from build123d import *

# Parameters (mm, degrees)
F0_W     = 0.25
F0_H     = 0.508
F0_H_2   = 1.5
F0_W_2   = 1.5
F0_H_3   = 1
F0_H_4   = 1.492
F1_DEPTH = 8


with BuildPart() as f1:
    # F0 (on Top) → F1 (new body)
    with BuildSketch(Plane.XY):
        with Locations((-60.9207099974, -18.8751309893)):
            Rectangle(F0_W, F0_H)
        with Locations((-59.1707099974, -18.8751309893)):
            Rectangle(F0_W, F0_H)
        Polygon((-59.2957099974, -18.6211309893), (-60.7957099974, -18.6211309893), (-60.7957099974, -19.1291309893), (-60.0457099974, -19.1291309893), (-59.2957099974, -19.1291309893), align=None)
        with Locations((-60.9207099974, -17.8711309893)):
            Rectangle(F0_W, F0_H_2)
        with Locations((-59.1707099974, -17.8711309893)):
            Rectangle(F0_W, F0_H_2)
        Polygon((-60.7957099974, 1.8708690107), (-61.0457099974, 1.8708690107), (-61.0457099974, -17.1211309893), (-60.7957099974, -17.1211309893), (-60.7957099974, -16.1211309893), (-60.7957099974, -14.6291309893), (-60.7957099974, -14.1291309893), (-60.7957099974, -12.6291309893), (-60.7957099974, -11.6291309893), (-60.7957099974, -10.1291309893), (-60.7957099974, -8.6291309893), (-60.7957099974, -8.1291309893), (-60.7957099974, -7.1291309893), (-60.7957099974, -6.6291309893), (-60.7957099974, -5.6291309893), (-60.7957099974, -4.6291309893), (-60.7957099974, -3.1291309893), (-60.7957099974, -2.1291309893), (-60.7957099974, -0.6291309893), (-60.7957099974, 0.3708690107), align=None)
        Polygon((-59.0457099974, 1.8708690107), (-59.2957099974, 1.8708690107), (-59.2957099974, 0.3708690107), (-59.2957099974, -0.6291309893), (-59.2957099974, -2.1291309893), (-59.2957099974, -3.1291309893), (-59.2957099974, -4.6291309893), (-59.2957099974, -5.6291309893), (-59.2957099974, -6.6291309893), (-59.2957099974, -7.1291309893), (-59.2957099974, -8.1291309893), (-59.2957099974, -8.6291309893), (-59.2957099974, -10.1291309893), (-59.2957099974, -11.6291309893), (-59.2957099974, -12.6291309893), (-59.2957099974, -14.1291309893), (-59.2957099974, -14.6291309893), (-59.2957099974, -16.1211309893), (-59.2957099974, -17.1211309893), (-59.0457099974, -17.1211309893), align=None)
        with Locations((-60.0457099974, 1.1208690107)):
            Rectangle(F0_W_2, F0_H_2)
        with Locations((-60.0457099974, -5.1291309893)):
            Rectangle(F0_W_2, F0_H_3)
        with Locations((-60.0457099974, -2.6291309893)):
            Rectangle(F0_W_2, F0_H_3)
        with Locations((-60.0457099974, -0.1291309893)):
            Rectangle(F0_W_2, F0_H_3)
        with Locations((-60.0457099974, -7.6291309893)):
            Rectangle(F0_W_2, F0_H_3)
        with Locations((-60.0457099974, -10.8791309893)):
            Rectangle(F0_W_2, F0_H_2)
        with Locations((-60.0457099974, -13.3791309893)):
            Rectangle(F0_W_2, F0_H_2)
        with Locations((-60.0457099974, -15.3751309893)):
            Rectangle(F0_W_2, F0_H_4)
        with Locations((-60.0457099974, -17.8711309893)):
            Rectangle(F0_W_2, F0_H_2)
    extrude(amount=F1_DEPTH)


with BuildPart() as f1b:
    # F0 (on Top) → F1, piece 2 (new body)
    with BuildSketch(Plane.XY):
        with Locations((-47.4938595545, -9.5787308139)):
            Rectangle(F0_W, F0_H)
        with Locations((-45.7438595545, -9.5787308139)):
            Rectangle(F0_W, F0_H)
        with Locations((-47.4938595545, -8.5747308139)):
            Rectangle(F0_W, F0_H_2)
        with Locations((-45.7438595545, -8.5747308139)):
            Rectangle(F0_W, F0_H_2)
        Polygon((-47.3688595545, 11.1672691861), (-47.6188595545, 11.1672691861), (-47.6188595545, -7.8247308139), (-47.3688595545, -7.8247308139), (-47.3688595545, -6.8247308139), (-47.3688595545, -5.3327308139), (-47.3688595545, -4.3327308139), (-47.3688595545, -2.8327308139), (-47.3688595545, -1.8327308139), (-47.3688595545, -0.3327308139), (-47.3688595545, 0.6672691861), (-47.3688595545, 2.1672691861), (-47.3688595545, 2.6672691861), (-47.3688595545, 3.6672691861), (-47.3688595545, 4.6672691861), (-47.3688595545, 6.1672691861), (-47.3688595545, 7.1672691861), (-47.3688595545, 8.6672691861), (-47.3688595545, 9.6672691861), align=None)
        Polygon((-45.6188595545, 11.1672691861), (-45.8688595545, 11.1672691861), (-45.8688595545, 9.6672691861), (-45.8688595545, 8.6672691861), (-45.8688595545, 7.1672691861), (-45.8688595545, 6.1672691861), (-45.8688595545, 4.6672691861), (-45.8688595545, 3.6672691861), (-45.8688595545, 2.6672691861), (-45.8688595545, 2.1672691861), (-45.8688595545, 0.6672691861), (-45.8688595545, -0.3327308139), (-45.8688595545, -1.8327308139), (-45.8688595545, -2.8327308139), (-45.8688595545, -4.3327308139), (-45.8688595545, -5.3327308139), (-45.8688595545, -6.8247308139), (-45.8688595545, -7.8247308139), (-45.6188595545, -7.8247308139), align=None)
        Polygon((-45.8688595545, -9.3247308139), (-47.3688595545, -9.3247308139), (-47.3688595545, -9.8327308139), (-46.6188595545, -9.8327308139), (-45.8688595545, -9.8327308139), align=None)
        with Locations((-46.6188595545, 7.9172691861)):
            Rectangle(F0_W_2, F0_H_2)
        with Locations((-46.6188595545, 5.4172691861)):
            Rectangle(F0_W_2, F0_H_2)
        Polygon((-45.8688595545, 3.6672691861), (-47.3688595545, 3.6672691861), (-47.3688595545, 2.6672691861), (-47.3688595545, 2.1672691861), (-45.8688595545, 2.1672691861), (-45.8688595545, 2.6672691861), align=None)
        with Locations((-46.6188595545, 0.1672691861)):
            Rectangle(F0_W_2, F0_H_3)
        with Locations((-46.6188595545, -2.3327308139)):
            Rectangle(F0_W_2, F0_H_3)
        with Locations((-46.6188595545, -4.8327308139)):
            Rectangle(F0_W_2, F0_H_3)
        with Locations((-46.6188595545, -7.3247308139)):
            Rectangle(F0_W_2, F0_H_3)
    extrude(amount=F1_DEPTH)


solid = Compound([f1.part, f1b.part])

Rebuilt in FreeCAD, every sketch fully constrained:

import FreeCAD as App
import Part
import Sketcher

V = App.Vector
Q = App.Units.Quantity

doc = App.newDocument("Part")
body = doc.addObject("PartDesign::Body", "Body")

# Sketch on XY plane
sketch1 = body.newObject("Sketcher::SketchObject", "Sketch")
sketch1.AttachmentSupport = (doc.getObject("XY_Plane"), [""])
sketch1.MapMode = "FlatFace"
sketch1.addGeometry(Part.LineSegment(V(-61, -19.1, 0), V(-59, -19.1, 0)), False)
sketch1.addGeometry(Part.LineSegment(V(-59, -19.1, 0), V(-59, 1.9, 0)), False)
sketch1.addGeometry(Part.LineSegment(V(-59, 1.9, 0), V(-61, 1.9, 0)), False)
sketch1.addGeometry(Part.LineSegment(V(-61, 1.9, 0), V(-61, -19.1, 0)), False)
sketch1.addGeometry(Part.LineSegment(V(-59.3, -0.6, 0), V(-59.3, -2.1, 0)), False)
sketch1.addGeometry(Part.LineSegment(V(-59.3, -2.1, 0), V(-60.8, -2.1, 0)), False)
sketch1.addGeometry(Part.LineSegment(V(-60.8, -2.1, 0), V(-60.8, -0.6, 0)), False)
sketch1.addGeometry(Part.LineSegment(V(-60.8, -0.6, 0), V(-59.3, -0.6, 0)), False)
sketch1.addGeometry(Part.LineSegment(V(-59.3, -3.1, 0), V(-59.3, -4.6, 0)), False)
sketch1.addGeometry(Part.LineSegment(V(-59.3, -4.6, 0), V(-60.8, -4.6, 0)), False)
sketch1.addGeometry(Part.LineSegment(V(-60.8, -4.6, 0), V(-60.8, -3.1, 0)), False)
sketch1.addGeometry(Part.LineSegment(V(-60.8, -3.1, 0), V(-59.3, -3.1, 0)), False)
sketch1.addGeometry(Part.LineSegment(V(-59.3, -5.6, 0), V(-59.3, -7.1, 0)), False)
sketch1.addGeometry(Part.LineSegment(V(-59.3, -7.1, 0), V(-60.8, -7.1, 0)), False)
sketch1.addGeometry(Part.LineSegment(V(-60.8, -7.1, 0), V(-60.8, -5.6, 0)), False)
sketch1.addGeometry(Part.LineSegment(V(-60.8, -5.6, 0), V(-59.3, -5.6, 0)), False)
sketch1.addGeometry(Part.LineSegment(V(-59.3, -8.1, 0), V(-59.3, -10.1, 0)), False)
sketch1.addGeometry(Part.LineSegment(V(-59.3, -10.1, 0), V(-60.8, -10.1, 0)), False)
sketch1.addGeometry(Part.LineSegment(V(-60.8, -10.1, 0), V(-60.8, -8.1, 0)), False)
sketch1.addGeometry(Part.LineSegment(V(-60.8, -8.1, 0), V(-59.3, -8.1, 0)), False)
sketch1.addGeometry(Part.LineSegment(V(-59.3, -11.6, 0), V(-59.3, -12.6, 0)), False)
sketch1.addGeometry(Part.LineSegment(V(-59.3, -12.6, 0), V(-60.8, -12.6, 0)), False)
sketch1.addGeometry(Part.LineSegment(V(-60.8, -12.6, 0), V(-60.8, -11.6, 0)), False)
sketch1.addGeometry(Part.LineSegment(V(-60.8, -11.6, 0), V(-59.3, -11.6, 0)), False)
sketch1.addGeometry(Part.LineSegment(V(-59.3, -14.1, 0), V(-59.3, -14.6, 0)), False)
sketch1.addGeometry(Part.LineSegment(V(-59.3, -14.6, 0), V(-60.8, -14.6, 0)), False)
sketch1.addGeometry(Part.LineSegment(V(-60.8, -14.6, 0), V(-60.8, -14.1, 0)), False)
sketch1.addGeometry(Part.LineSegment(V(-60.8, -14.1, 0), V(-59.3, -14.1, 0)), False)
sketch1.addGeometry(Part.LineSegment(V(-59.3, -16.1, 0), V(-59.3, -17.1, 0)), False)
sketch1.addGeometry(Part.LineSegment(V(-59.3, -17.1, 0), V(-60.8, -17.1, 0)), False)
sketch1.addGeometry(Part.LineSegment(V(-60.8, -17.1, 0), V(-60.8, -16.1, 0)), False)
sketch1.addGeometry(Part.LineSegment(V(-60.8, -16.1, 0), V(-59.3, -16.1, 0)), False)
sketch1.addConstraint(Sketcher.Constraint("Coincident", 0, 2, 1, 1))
sketch1.addConstraint(Sketcher.Constraint("Coincident", 1, 2, 2, 1))
sketch1.addConstraint(Sketcher.Constraint("Coincident", 2, 2, 3, 1))
sketch1.addConstraint(Sketcher.Constraint("Coincident", 3, 2, 0, 1))
sketch1.addConstraint(Sketcher.Constraint("Coincident", 4, 2, 5, 1))
sketch1.addConstraint(Sketcher.Constraint("Coincident", 5, 2, 6, 1))
sketch1.addConstraint(Sketcher.Constraint("Coincident", 6, 2, 7, 1))
sketch1.addConstraint(Sketcher.Constraint("Coincident", 7, 2, 4, 1))
sketch1.addConstraint(Sketcher.Constraint("Coincident", 8, 2, 9, 1))
sketch1.addConstraint(Sketcher.Constraint("Coincident", 9, 2, 10, 1))
sketch1.addConstraint(Sketcher.Constraint("Coincident", 10, 2, 11, 1))
sketch1.addConstraint(Sketcher.Constraint("Coincident", 11, 2, 8, 1))
sketch1.addConstraint(Sketcher.Constraint("Coincident", 12, 2, 13, 1))
sketch1.addConstraint(Sketcher.Constraint("Coincident", 13, 2, 14, 1))
sketch1.addConstraint(Sketcher.Constraint("Coincident", 14, 2, 15, 1))
sketch1.addConstraint(Sketcher.Constraint("Coincident", 15, 2, 12, 1))
sketch1.addConstraint(Sketcher.Constraint("Coincident", 16, 2, 17, 1))
sketch1.addConstraint(Sketcher.Constraint("Coincident", 17, 2, 18, 1))
sketch1.addConstraint(Sketcher.Constraint("Coincident", 18, 2, 19, 1))
sketch1.addConstraint(Sketcher.Constraint("Coincident", 19, 2, 16, 1))
sketch1.addConstraint(Sketcher.Constraint("Coincident", 20, 2, 21, 1))
sketch1.addConstraint(Sketcher.Constraint("Coincident", 21, 2, 22, 1))
sketch1.addConstraint(Sketcher.Constraint("Coincident", 22, 2, 23, 1))
sketch1.addConstraint(Sketcher.Constraint("Coincident", 23, 2, 20, 1))
sketch1.addConstraint(Sketcher.Constraint("Coincident", 24, 2, 25, 1))
sketch1.addConstraint(Sketcher.Constraint("Coincident", 25, 2, 26, 1))
sketch1.addConstraint(Sketcher.Constraint("Coincident", 26, 2, 27, 1))
sketch1.addConstraint(Sketcher.Constraint("Coincident", 27, 2, 24, 1))
sketch1.addConstraint(Sketcher.Constraint("Coincident", 28, 2, 29, 1))
sketch1.addConstraint(Sketcher.Constraint("Coincident", 29, 2, 30, 1))
sketch1.addConstraint(Sketcher.Constraint("Coincident", 30, 2, 31, 1))
sketch1.addConstraint(Sketcher.Constraint("Coincident", 31, 2, 28, 1))
sketch1.addConstraint(Sketcher.Constraint("Horizontal", 0))
sketch1.addConstraint(Sketcher.Constraint("Vertical", 1))
sketch1.addConstraint(Sketcher.Constraint("Horizontal", 2))
sketch1.addConstraint(Sketcher.Constraint("Vertical", 3))
sketch1.addConstraint(Sketcher.Constraint("Vertical", 4))
sketch1.addConstraint(Sketcher.Constraint("Horizontal", 5))
sketch1.addConstraint(Sketcher.Constraint("Vertical", 6))
sketch1.addConstraint(Sketcher.Constraint("Horizontal", 7))
sketch1.addConstraint(Sketcher.Constraint("Vertical", 8))
sketch1.addConstraint(Sketcher.Constraint("Horizontal", 9))
sketch1.addConstraint(Sketcher.Constraint("Vertical", 10))
sketch1.addConstraint(Sketcher.Constraint("Horizontal", 11))
sketch1.addConstraint(Sketcher.Constraint("Vertical", 12))
sketch1.addConstraint(Sketcher.Constraint("Horizontal", 13))
sketch1.addConstraint(Sketcher.Constraint("Vertical", 14))
sketch1.addConstraint(Sketcher.Constraint("Horizontal", 15))
sketch1.addConstraint(Sketcher.Constraint("Vertical", 16))
sketch1.addConstraint(Sketcher.Constraint("Horizontal", 17))
sketch1.addConstraint(Sketcher.Constraint("Vertical", 18))
sketch1.addConstraint(Sketcher.Constraint("Horizontal", 19))
sketch1.addConstraint(Sketcher.Constraint("Vertical", 20))
sketch1.addConstraint(Sketcher.Constraint("Horizontal", 21))
sketch1.addConstraint(Sketcher.Constraint("Vertical", 22))
sketch1.addConstraint(Sketcher.Constraint("Horizontal", 23))
sketch1.addConstraint(Sketcher.Constraint("Vertical", 24))
sketch1.addConstraint(Sketcher.Constraint("Horizontal", 25))
sketch1.addConstraint(Sketcher.Constraint("Vertical", 26))
sketch1.addConstraint(Sketcher.Constraint("Horizontal", 27))
sketch1.addConstraint(Sketcher.Constraint("Vertical", 28))
sketch1.addConstraint(Sketcher.Constraint("Horizontal", 29))
sketch1.addConstraint(Sketcher.Constraint("Vertical", 30))
sketch1.addConstraint(Sketcher.Constraint("Horizontal", 31))
sketch1.addConstraint(Sketcher.Constraint("Vertical", 7, 2, 8, 2))
sketch1.addConstraint(Sketcher.Constraint("Vertical", 6, 2, 9, 2))
sketch1.addConstraint(Sketcher.Constraint("Vertical", 11, 2, 12, 2))
sketch1.addConstraint(Sketcher.Constraint("Vertical", 10, 2, 13, 2))
sketch1.addConstraint(Sketcher.Constraint("Vertical", 15, 2, 16, 2))
sketch1.addConstraint(Sketcher.Constraint("Vertical", 14, 2, 17, 2))
sketch1.addConstraint(Sketcher.Constraint("Vertical", 19, 2, 20, 2))
sketch1.addConstraint(Sketcher.Constraint("Vertical", 18, 2, 21, 2))
sketch1.addConstraint(Sketcher.Constraint("Vertical", 23, 2, 24, 2))
sketch1.addConstraint(Sketcher.Constraint("Vertical", 22, 2, 25, 2))
sketch1.addConstraint(Sketcher.Constraint("Vertical", 27, 2, 28, 2))
sketch1.addConstraint(Sketcher.Constraint("Vertical", 26, 2, 29, 2))
sketch1.addConstraint(Sketcher.Constraint("Equal", 31, 4))
sketch1.addConstraint(Sketcher.Constraint("Equal", 6, 8))
sketch1.addConstraint(Sketcher.Constraint("Equal", 10, 12))
sketch1.addConstraint(Sketcher.Constraint("Equal", 2, 16))
sketch1.addConstraint(Sketcher.Constraint("Equal", 22, 28))
sketch1.addConstraint(Sketcher.Constraint("DistanceX", 0, 1, 0, 2, Q("2 mm")))
sketch1.addConstraint(Sketcher.Constraint("DistanceY", 1, 1, 1, 2, Q("21 mm")))
sketch1.addConstraint(Sketcher.Constraint("DistanceY", 20, 2, 20, 1, Q("1 mm")))
sketch1.addConstraint(Sketcher.Constraint("DistanceX", 5, 2, 5, 1, Q("1.5 mm")))
sketch1.addConstraint(Sketcher.Constraint("DistanceY", 24, 2, 24, 1, Q("0.5 mm")))
sketch1.addConstraint(Sketcher.Constraint("DistanceY", 4, 2, 1, 2, Q("4 mm")))
sketch1.addConstraint(Sketcher.Constraint("DistanceY", 8, 2, 7, 2, Q("4 mm")))
sketch1.addConstraint(Sketcher.Constraint("DistanceY", 12, 2, 11, 2, Q("4 mm")))
sketch1.addConstraint(Sketcher.Constraint("DistanceY", 16, 2, 12, 2, Q("3 mm")))
sketch1.addConstraint(Sketcher.Constraint("DistanceY", 24, 2, 20, 2, Q("2 mm")))
sketch1.addConstraint(Sketcher.Constraint("DistanceY", 20, 2, 16, 2, Q("2.5 mm")))
sketch1.addConstraint(Sketcher.Constraint("DistanceX", 4, 2, 1, 2, Q("0.25 mm")))
sketch1.addConstraint(Sketcher.Constraint("DistanceY", 0, 2, 28, 2, Q("2.008 mm")))
sketch1.addConstraint(Sketcher.Constraint("DistanceX", 0, 2, -1, 1, Q("59.04571 mm")))
sketch1.addConstraint(Sketcher.Constraint("DistanceY", 0, 2, -1, 1, Q("19.129131 mm")))
pad1 = body.newObject("PartDesign::Pad", "Pad")
pad1.Profile = sketch1
pad1.Length = 8
body2 = doc.addObject("PartDesign::Body", "Body001")

# Sketch on XY plane
sketch2 = body2.newObject("Sketcher::SketchObject", "Sketch001")
sketch2.AttachmentSupport = (doc.getObject("XY_Plane001"), [""])
sketch2.MapMode = "FlatFace"
sketch2.addGeometry(Part.LineSegment(V(-47.62, -9.83, 0), V(-45.62, -9.83, 0)), False)
sketch2.addGeometry(Part.LineSegment(V(-45.62, -9.83, 0), V(-45.62, 11.17, 0)), False)
sketch2.addGeometry(Part.LineSegment(V(-45.62, 11.17, 0), V(-45.87, 11.17, 0)), False)
sketch2.addGeometry(Part.LineSegment(V(-45.87, 11.17, 0), V(-45.87, 8.67, 0)), False)
sketch2.addGeometry(Part.LineSegment(V(-45.87, 8.67, 0), V(-47.37, 8.67, 0)), False)
sketch2.addGeometry(Part.LineSegment(V(-47.37, 8.67, 0), V(-47.37, 11.17, 0)), False)
sketch2.addGeometry(Part.LineSegment(V(-47.37, 11.17, 0), V(-47.62, 11.17, 0)), False)
sketch2.addGeometry(Part.LineSegment(V(-47.62, 11.17, 0), V(-47.62, -9.83, 0)), False)
sketch2.addGeometry(Part.LineSegment(V(-45.87, 7.17, 0), V(-45.87, 6.17, 0)), False)
sketch2.addGeometry(Part.LineSegment(V(-45.87, 6.17, 0), V(-47.37, 6.17, 0)), False)
sketch2.addGeometry(Part.LineSegment(V(-47.37, 6.17, 0), V(-47.37, 7.17, 0)), False)
sketch2.addGeometry(Part.LineSegment(V(-47.37, 7.17, 0), V(-45.87, 7.17, 0)), False)
sketch2.addGeometry(Part.LineSegment(V(-45.87, 4.67, 0), V(-45.87, 3.67, 0)), False)
sketch2.addGeometry(Part.LineSegment(V(-45.87, 3.67, 0), V(-47.37, 3.67, 0)), False)
sketch2.addGeometry(Part.LineSegment(V(-47.37, 3.67, 0), V(-47.37, 4.67, 0)), False)
sketch2.addGeometry(Part.LineSegment(V(-47.37, 4.67, 0), V(-45.87, 4.67, 0)), False)
sketch2.addGeometry(Part.LineSegment(V(-45.87, 2.17, 0), V(-45.87, 0.67, 0)), False)
sketch2.addGeometry(Part.LineSegment(V(-45.87, 0.67, 0), V(-47.37, 0.67, 0)), False)
sketch2.addGeometry(Part.LineSegment(V(-47.37, 0.67, 0), V(-47.37, 2.17, 0)), False)
sketch2.addGeometry(Part.LineSegment(V(-47.37, 2.17, 0), V(-45.87, 2.17, 0)), False)
sketch2.addGeometry(Part.LineSegment(V(-45.87, -0.33, 0), V(-45.87, -1.83, 0)), False)
sketch2.addGeometry(Part.LineSegment(V(-45.87, -1.83, 0), V(-47.37, -1.83, 0)), False)
sketch2.addGeometry(Part.LineSegment(V(-47.37, -1.83, 0), V(-47.37, -0.33, 0)), False)
sketch2.addGeometry(Part.LineSegment(V(-47.37, -0.33, 0), V(-45.87, -0.33, 0)), False)
sketch2.addGeometry(Part.LineSegment(V(-45.87, -2.83, 0), V(-45.87, -4.33, 0)), False)
sketch2.addGeometry(Part.LineSegment(V(-45.87, -4.33, 0), V(-47.37, -4.33, 0)), False)
sketch2.addGeometry(Part.LineSegment(V(-47.37, -4.33, 0), V(-47.37, -2.83, 0)), False)
sketch2.addGeometry(Part.LineSegment(V(-47.37, -2.83, 0), V(-45.87, -2.83, 0)), False)
sketch2.addGeometry(Part.LineSegment(V(-45.87, -5.33, 0), V(-45.87, -6.82, 0)), False)
sketch2.addGeometry(Part.LineSegment(V(-45.87, -6.82, 0), V(-47.37, -6.82, 0)), False)
sketch2.addGeometry(Part.LineSegment(V(-47.37, -6.82, 0), V(-47.37, -5.33, 0)), False)
sketch2.addGeometry(Part.LineSegment(V(-47.37, -5.33, 0), V(-45.87, -5.33, 0)), False)
sketch2.addGeometry(Part.LineSegment(V(-45.87, -7.82, 0), V(-45.87, -9.32, 0)), False)
sketch2.addGeometry(Part.LineSegment(V(-45.87, -9.32, 0), V(-47.37, -9.32, 0)), False)
sketch2.addGeometry(Part.LineSegment(V(-47.37, -9.32, 0), V(-47.37, -7.82, 0)), False)
sketch2.addGeometry(Part.LineSegment(V(-47.37, -7.82, 0), V(-45.87, -7.82, 0)), False)
sketch2.addConstraint(Sketcher.Constraint("Coincident", 0, 2, 1, 1))
sketch2.addConstraint(Sketcher.Constraint("Coincident", 1, 2, 2, 1))
sketch2.addConstraint(Sketcher.Constraint("Coincident", 2, 2, 3, 1))
sketch2.addConstraint(Sketcher.Constraint("Coincident", 3, 2, 4, 1))
sketch2.addConstraint(Sketcher.Constraint("Coincident", 4, 2, 5, 1))
sketch2.addConstraint(Sketcher.Constraint("Coincident", 5, 2, 6, 1))
sketch2.addConstraint(Sketcher.Constraint("Coincident", 6, 2, 7, 1))
sketch2.addConstraint(Sketcher.Constraint("Coincident", 7, 2, 0, 1))
sketch2.addConstraint(Sketcher.Constraint("Coincident", 8, 2, 9, 1))
sketch2.addConstraint(Sketcher.Constraint("Coincident", 9, 2, 10, 1))
sketch2.addConstraint(Sketcher.Constraint("Coincident", 10, 2, 11, 1))
sketch2.addConstraint(Sketcher.Constraint("Coincident", 11, 2, 8, 1))
sketch2.addConstraint(Sketcher.Constraint("Coincident", 12, 2, 13, 1))
sketch2.addConstraint(Sketcher.Constraint("Coincident", 13, 2, 14, 1))
sketch2.addConstraint(Sketcher.Constraint("Coincident", 14, 2, 15, 1))
sketch2.addConstraint(Sketcher.Constraint("Coincident", 15, 2, 12, 1))
sketch2.addConstraint(Sketcher.Constraint("Coincident", 16, 2, 17, 1))
sketch2.addConstraint(Sketcher.Constraint("Coincident", 17, 2, 18, 1))
sketch2.addConstraint(Sketcher.Constraint("Coincident", 18, 2, 19, 1))
sketch2.addConstraint(Sketcher.Constraint("Coincident", 19, 2, 16, 1))
sketch2.addConstraint(Sketcher.Constraint("Coincident", 20, 2, 21, 1))
sketch2.addConstraint(Sketcher.Constraint("Coincident", 21, 2, 22, 1))
sketch2.addConstraint(Sketcher.Constraint("Coincident", 22, 2, 23, 1))
sketch2.addConstraint(Sketcher.Constraint("Coincident", 23, 2, 20, 1))
sketch2.addConstraint(Sketcher.Constraint("Coincident", 24, 2, 25, 1))
sketch2.addConstraint(Sketcher.Constraint("Coincident", 25, 2, 26, 1))
sketch2.addConstraint(Sketcher.Constraint("Coincident", 26, 2, 27, 1))
sketch2.addConstraint(Sketcher.Constraint("Coincident", 27, 2, 24, 1))
sketch2.addConstraint(Sketcher.Constraint("Coincident", 28, 2, 29, 1))
sketch2.addConstraint(Sketcher.Constraint("Coincident", 29, 2, 30, 1))
sketch2.addConstraint(Sketcher.Constraint("Coincident", 30, 2, 31, 1))
sketch2.addConstraint(Sketcher.Constraint("Coincident", 31, 2, 28, 1))
sketch2.addConstraint(Sketcher.Constraint("Coincident", 32, 2, 33, 1))
sketch2.addConstraint(Sketcher.Constraint("Coincident", 33, 2, 34, 1))
sketch2.addConstraint(Sketcher.Constraint("Coincident", 34, 2, 35, 1))
sketch2.addConstraint(Sketcher.Constraint("Coincident", 35, 2, 32, 1))
sketch2.addConstraint(Sketcher.Constraint("Horizontal", 0))
sketch2.addConstraint(Sketcher.Constraint("Vertical", 1))
sketch2.addConstraint(Sketcher.Constraint("Horizontal", 2))
sketch2.addConstraint(Sketcher.Constraint("Vertical", 3))
sketch2.addConstraint(Sketcher.Constraint("Horizontal", 4))
sketch2.addConstraint(Sketcher.Constraint("Vertical", 5))
sketch2.addConstraint(Sketcher.Constraint("Horizontal", 6))
sketch2.addConstraint(Sketcher.Constraint("Vertical", 7))
sketch2.addConstraint(Sketcher.Constraint("Vertical", 8))
sketch2.addConstraint(Sketcher.Constraint("Horizontal", 9))
sketch2.addConstraint(Sketcher.Constraint("Vertical", 10))
sketch2.addConstraint(Sketcher.Constraint("Horizontal", 11))
sketch2.addConstraint(Sketcher.Constraint("Vertical", 12))
sketch2.addConstraint(Sketcher.Constraint("Horizontal", 13))
sketch2.addConstraint(Sketcher.Constraint("Vertical", 14))
sketch2.addConstraint(Sketcher.Constraint("Horizontal", 15))
sketch2.addConstraint(Sketcher.Constraint("Vertical", 16))
sketch2.addConstraint(Sketcher.Constraint("Horizontal", 17))
sketch2.addConstraint(Sketcher.Constraint("Vertical", 18))
sketch2.addConstraint(Sketcher.Constraint("Horizontal", 19))
sketch2.addConstraint(Sketcher.Constraint("Vertical", 20))
sketch2.addConstraint(Sketcher.Constraint("Horizontal", 21))
sketch2.addConstraint(Sketcher.Constraint("Vertical", 22))
sketch2.addConstraint(Sketcher.Constraint("Horizontal", 23))
sketch2.addConstraint(Sketcher.Constraint("Vertical", 24))
sketch2.addConstraint(Sketcher.Constraint("Horizontal", 25))
sketch2.addConstraint(Sketcher.Constraint("Vertical", 26))
sketch2.addConstraint(Sketcher.Constraint("Horizontal", 27))
sketch2.addConstraint(Sketcher.Constraint("Vertical", 28))
sketch2.addConstraint(Sketcher.Constraint("Horizontal", 29))
sketch2.addConstraint(Sketcher.Constraint("Vertical", 30))
sketch2.addConstraint(Sketcher.Constraint("Horizontal", 31))
sketch2.addConstraint(Sketcher.Constraint("Vertical", 32))
sketch2.addConstraint(Sketcher.Constraint("Horizontal", 33))
sketch2.addConstraint(Sketcher.Constraint("Vertical", 34))
sketch2.addConstraint(Sketcher.Constraint("Horizontal", 35))
sketch2.addConstraint(Sketcher.Constraint("Horizontal", 2, 2, 5, 2))
sketch2.addConstraint(Sketcher.Constraint("Vertical", 3, 2, 8, 2))
sketch2.addConstraint(Sketcher.Constraint("Vertical", 5, 2, 9, 2))
sketch2.addConstraint(Sketcher.Constraint("Vertical", 11, 2, 12, 2))
sketch2.addConstraint(Sketcher.Constraint("Vertical", 10, 2, 13, 2))
sketch2.addConstraint(Sketcher.Constraint("Vertical", 15, 2, 16, 2))
sketch2.addConstraint(Sketcher.Constraint("Vertical", 14, 2, 17, 2))
sketch2.addConstraint(Sketcher.Constraint("Vertical", 19, 2, 20, 2))
sketch2.addConstraint(Sketcher.Constraint("Vertical", 18, 2, 21, 2))
sketch2.addConstraint(Sketcher.Constraint("Vertical", 23, 2, 24, 2))
sketch2.addConstraint(Sketcher.Constraint("Vertical", 22, 2, 25, 2))
sketch2.addConstraint(Sketcher.Constraint("Vertical", 27, 2, 28, 2))
sketch2.addConstraint(Sketcher.Constraint("Vertical", 26, 2, 29, 2))
sketch2.addConstraint(Sketcher.Constraint("Vertical", 31, 2, 32, 2))
sketch2.addConstraint(Sketcher.Constraint("Vertical", 30, 2, 33, 2))
sketch2.addConstraint(Sketcher.Constraint("Equal", 2, 6))
sketch2.addConstraint(Sketcher.Constraint("Equal", 10, 12))
sketch2.addConstraint(Sketcher.Constraint("Equal", 35, 16))
sketch2.addConstraint(Sketcher.Constraint("Equal", 18, 20))
sketch2.addConstraint(Sketcher.Constraint("Equal", 22, 24))
sketch2.addConstraint(Sketcher.Constraint("Equal", 26, 32))
sketch2.addConstraint(Sketcher.Constraint("DistanceX", 0, 1, 0, 2, Q("2 mm")))
sketch2.addConstraint(Sketcher.Constraint("DistanceY", 1, 1, 1, 2, Q("21 mm")))
sketch2.addConstraint(Sketcher.Constraint("DistanceY", 8, 2, 8, 1, Q("1 mm")))
sketch2.addConstraint(Sketcher.Constraint("DistanceX", 4, 2, 4, 1, Q("1.5 mm")))
sketch2.addConstraint(Sketcher.Constraint("DistanceY", 3, 2, 3, 1, Q("2.5 mm")))
sketch2.addConstraint(Sketcher.Constraint("DistanceY", 8, 2, 2, 2, Q("5 mm")))
sketch2.addConstraint(Sketcher.Constraint("DistanceY", 12, 2, 3, 2, Q("5 mm")))
sketch2.addConstraint(Sketcher.Constraint("DistanceY", 16, 2, 12, 2, Q("3 mm")))
sketch2.addConstraint(Sketcher.Constraint("DistanceY", 20, 2, 19, 2, Q("4 mm")))
sketch2.addConstraint(Sketcher.Constraint("DistanceY", 24, 2, 23, 2, Q("4 mm")))
sketch2.addConstraint(Sketcher.Constraint("DistanceY", 30, 2, 25, 2, Q("1 mm")))
sketch2.addConstraint(Sketcher.Constraint("DistanceY", 34, 2, 29, 2, Q("1 mm")))
sketch2.addConstraint(Sketcher.Constraint("DistanceY", 28, 2, 28, 1, Q("1.492 mm")))
sketch2.addConstraint(Sketcher.Constraint("DistanceX", 0, 2, -1, 1, Q("45.61886 mm")))
sketch2.addConstraint(Sketcher.Constraint("DistanceY", 0, 2, -1, 1, Q("9.832731 mm")))
pad2 = body2.newObject("PartDesign::Pad", "Pad001")
pad2.Profile = sketch2
pad2.Length = 8

doc.recompute()
